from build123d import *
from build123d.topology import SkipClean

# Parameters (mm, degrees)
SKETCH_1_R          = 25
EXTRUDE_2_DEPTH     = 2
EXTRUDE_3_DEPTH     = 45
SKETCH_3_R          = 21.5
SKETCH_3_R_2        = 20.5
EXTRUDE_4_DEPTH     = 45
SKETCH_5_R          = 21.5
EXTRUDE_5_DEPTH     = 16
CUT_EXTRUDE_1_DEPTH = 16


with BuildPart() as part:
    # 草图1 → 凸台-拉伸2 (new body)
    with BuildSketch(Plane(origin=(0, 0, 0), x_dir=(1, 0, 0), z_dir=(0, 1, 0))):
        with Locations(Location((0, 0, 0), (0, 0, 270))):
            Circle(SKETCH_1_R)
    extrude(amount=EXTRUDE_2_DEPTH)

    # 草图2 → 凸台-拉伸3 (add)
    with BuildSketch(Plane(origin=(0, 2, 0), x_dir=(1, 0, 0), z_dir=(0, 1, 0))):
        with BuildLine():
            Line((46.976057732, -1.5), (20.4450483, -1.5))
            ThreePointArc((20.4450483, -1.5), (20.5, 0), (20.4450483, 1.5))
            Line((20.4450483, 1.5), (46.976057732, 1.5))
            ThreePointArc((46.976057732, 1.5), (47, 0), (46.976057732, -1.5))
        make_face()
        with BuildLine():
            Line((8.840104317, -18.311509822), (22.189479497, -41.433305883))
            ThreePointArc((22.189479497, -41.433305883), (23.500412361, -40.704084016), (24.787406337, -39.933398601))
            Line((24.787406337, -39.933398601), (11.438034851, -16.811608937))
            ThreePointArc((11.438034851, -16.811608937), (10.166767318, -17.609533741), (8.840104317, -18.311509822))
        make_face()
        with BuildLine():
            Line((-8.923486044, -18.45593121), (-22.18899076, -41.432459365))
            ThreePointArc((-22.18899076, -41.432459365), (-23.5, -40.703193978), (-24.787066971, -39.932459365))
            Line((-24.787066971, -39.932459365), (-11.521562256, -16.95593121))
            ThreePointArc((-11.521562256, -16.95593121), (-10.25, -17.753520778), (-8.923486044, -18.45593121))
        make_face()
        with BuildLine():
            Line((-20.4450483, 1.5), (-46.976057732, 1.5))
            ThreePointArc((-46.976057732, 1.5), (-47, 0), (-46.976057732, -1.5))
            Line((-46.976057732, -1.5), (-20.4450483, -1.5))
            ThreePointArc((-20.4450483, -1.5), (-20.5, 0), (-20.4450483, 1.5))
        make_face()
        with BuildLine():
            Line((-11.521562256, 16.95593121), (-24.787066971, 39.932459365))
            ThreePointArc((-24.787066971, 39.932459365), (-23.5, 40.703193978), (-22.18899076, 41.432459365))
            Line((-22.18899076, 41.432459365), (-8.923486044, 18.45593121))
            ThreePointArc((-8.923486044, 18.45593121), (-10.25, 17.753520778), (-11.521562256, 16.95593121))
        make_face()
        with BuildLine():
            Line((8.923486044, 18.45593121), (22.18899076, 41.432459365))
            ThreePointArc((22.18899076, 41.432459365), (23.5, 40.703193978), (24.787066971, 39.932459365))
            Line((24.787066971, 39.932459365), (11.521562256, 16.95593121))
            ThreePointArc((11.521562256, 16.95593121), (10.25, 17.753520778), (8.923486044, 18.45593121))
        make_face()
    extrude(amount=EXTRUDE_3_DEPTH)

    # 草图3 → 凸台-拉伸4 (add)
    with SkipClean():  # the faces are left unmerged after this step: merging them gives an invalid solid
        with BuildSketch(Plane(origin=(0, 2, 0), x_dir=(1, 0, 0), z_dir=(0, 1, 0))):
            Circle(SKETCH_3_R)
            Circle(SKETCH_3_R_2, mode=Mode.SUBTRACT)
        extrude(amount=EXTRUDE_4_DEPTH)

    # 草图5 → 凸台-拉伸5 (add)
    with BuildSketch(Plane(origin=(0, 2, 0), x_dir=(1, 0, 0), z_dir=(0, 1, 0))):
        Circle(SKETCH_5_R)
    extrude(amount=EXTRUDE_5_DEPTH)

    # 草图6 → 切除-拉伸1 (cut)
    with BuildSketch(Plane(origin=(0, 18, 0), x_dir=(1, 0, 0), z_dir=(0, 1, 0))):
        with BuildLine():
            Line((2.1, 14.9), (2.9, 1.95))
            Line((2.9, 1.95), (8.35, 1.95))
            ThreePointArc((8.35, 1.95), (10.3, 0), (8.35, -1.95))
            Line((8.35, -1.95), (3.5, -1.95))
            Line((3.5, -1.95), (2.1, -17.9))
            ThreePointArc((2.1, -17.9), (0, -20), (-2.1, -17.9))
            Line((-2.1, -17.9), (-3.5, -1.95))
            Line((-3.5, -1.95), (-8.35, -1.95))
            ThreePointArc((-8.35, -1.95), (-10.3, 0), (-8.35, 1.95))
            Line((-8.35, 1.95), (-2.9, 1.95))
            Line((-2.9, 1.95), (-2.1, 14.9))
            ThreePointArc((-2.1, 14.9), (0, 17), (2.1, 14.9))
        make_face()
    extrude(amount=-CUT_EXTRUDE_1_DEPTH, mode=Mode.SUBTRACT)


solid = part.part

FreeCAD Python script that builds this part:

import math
import FreeCAD as App
import Part
import Sketcher
Q = App.Units.Quantity

doc = App.newDocument("Part")
body = doc.addObject("PartDesign::Body", "Body")

sketch1 = body.newObject("Sketcher::SketchObject", "Sketch")
sketch1.AttachmentSupport = (doc.getObject("XZ_Plane"), [""])
sketch1.MapMode = "FlatFace"
sketch1.addGeometry(Part.Circle(App.Vector(0, 0, 0), App.Vector(0, 0, 1), 25), False)
sketch1.addConstraint([
    Sketcher.Constraint("Coincident", 0, 3, -1, 1),
    Sketcher.Constraint("Diameter", 0, 50.0),
])
pad1 = body.newObject("PartDesign::Pad", "Pad")
pad1.Profile = sketch1
pad1.Length = 2
pad1.Reversed = True

sketch2 = body.newObject("Sketcher::SketchObject", "Sketch001")
sketch2.AttachmentSupport = (doc.getObject("XZ_Plane"), [""])
sketch2.MapMode = "FlatFace"
sketch2.AttachmentOffset = App.Placement(App.Vector(0, 0, -2), App.Rotation())
sketch2.addGeometry([
    Part.LineSegment(App.Vector(20.4, 1.5, 0), App.Vector(47, 1.5, 0)),
    Part.ArcOfCircle(Part.Circle(App.Vector(0, 0, 0), App.Vector(0, 0, 1), 47), math.radians(-1.83), math.radians(1.83)),
    Part.LineSegment(App.Vector(47, -1.5, 0), App.Vector(20.4, -1.5, 0)),
    Part.ArcOfCircle(Part.Circle(App.Vector(0, 0, 0), App.Vector(0, 0, 1), 20.5), math.radians(-4.2), math.radians(4.2)),
    Part.LineSegment(App.Vector(8.8, 18.3, 0), App.Vector(22.2, 41.4, 0)),
    Part.ArcOfCircle(Part.Circle(App.Vector(0, 0, 0), App.Vector(0, 0, 1), 47), math.radians(58.17), math.radians(61.83)),
    Part.LineSegment(App.Vector(24.8, 39.9, 0), App.Vector(11.4, 16.8, 0)),
    Part.ArcOfCircle(Part.Circle(App.Vector(0, 0, 0), App.Vector(0, 0, 1), 20.3), math.radians(55.77), math.radians(64.23)),
    Part.LineSegment(App.Vector(-22.2, 41.4, 0), App.Vector(-8.9, 18.5, 0)),
    Part.ArcOfCircle(Part.Circle(App.Vector(0, 0, 0), App.Vector(0, 0, 1), 20.5), math.radians(115.8), math.radians(124.2)),
    Part.LineSegment(App.Vector(-11.5, 17, 0), App.Vector(-24.8, 39.9, 0)),
    Part.ArcOfCircle(Part.Circle(App.Vector(0, 0, 0), App.Vector(0, 0, 1), 47), math.radians(118.17), math.radians(121.83)),
    Part.LineSegment(App.Vector(-20.4, -1.5, 0), App.Vector(-47, -1.5, 0)),
    Part.ArcOfCircle(Part.Circle(App.Vector(0, 0, 0), App.Vector(0, 0, 1), 47), math.radians(178.17), math.radians(181.83)),
    Part.LineSegment(App.Vector(-47, 1.5, 0), App.Vector(-20.4, 1.5, 0)),
    Part.ArcOfCircle(Part.Circle(App.Vector(0, 0, 0), App.Vector(0, 0, 1), 20.5), math.radians(175.8), math.radians(184.2)),
    Part.LineSegment(App.Vector(-24.8, -39.9, 0), App.Vector(-11.5, -17, 0)),
    Part.ArcOfCircle(Part.Circle(App.Vector(0, 0, 0), App.Vector(0, 0, 1), 20.5), math.radians(-124.2), math.radians(-115.8)),
    Part.LineSegment(App.Vector(-8.9, -18.5, 0), App.Vector(-22.2, -41.4, 0)),
    Part.ArcOfCircle(Part.Circle(App.Vector(0, 0, 0), App.Vector(0, 0, 1), 47), math.radians(-121.83), math.radians(-118.17)),
    Part.LineSegment(App.Vector(22.2, -41.4, 0), App.Vector(8.9, -18.5, 0)),
    Part.ArcOfCircle(Part.Circle(App.Vector(0, 0, 0), App.Vector(0, 0, 1), 20.5), math.radians(-64.2), math.radians(-55.8)),
    Part.LineSegment(App.Vector(11.5, -17, 0), App.Vector(24.8, -39.9, 0)),
    Part.ArcOfCircle(Part.Circle(App.Vector(0, 0, 0), App.Vector(0, 0, 1), 47), math.radians(-61.83), math.radians(-58.17)),
], False)
sketch2.addConstraint([
    Sketcher.Constraint("Coincident", 0, 2, 1, 2),
    Sketcher.Constraint("Coincident", 1, 1, 2, 1),
    Sketcher.Constraint("Coincident", 2, 2, 3, 1),
    Sketcher.Constraint("Coincident", 3, 2, 0, 1),
    Sketcher.Constraint("Coincident", 4, 2, 5, 2),
    Sketcher.Constraint("Coincident", 5, 1, 6, 1),
    Sketcher.Constraint("Coincident", 6, 2, 7, 1),
    Sketcher.Constraint("Coincident", 7, 2, 4, 1),
    Sketcher.Constraint("Coincident", 8, 2, 9, 1),
    Sketcher.Constraint("Coincident", 9, 2, 10, 1),
    Sketcher.Constraint("Coincident", 10, 2, 11, 2),
    Sketcher.Constraint("Coincident", 11, 1, 8, 1),
    Sketcher.Constraint("Coincident", 12, 2, 13, 2),
    Sketcher.Constraint("Coincident", 13, 1, 14, 1),
    Sketcher.Constraint("Coincident", 14, 2, 15, 1),
    Sketcher.Constraint("Coincident", 15, 2, 12, 1),
    Sketcher.Constraint("Coincident", 16, 2, 17, 1),
    Sketcher.Constraint("Coincident", 17, 2, 18, 1),
    Sketcher.Constraint("Coincident", 18, 2, 19, 2),
    Sketcher.Constraint("Coincident", 19, 1, 16, 1),
    Sketcher.Constraint("Coincident", 20, 2, 21, 1),
    Sketcher.Constraint("Coincident", 21, 2, 22, 1),
    Sketcher.Constraint("Coincident", 22, 2, 23, 2),
    Sketcher.Constraint("Coincident", 23, 1, 20, 1),
    Sketcher.Constraint("Horizontal", 0),
    Sketcher.Constraint("Horizontal", 2),
    Sketcher.Constraint("Horizontal", 12),
    Sketcher.Constraint("Horizontal", 14),
    Sketcher.Constraint("Coincident", 1, 3, -1, 1),
    Sketcher.Constraint("Coincident", 3, 3, -1, 1),
    Sketcher.Constraint("Coincident", 5, 3, -1, 1),
    Sketcher.Constraint("Coincident", 7, 3, -1, 1),
    Sketcher.Constraint("Coincident", 9, 3, -1, 1),
    Sketcher.Constraint("Coincident", 11, 3, -1, 1),
    Sketcher.Constraint("Coincident", 13, 3, -1, 1),
    Sketcher.Constraint("Coincident", 15, 3, -1, 1),
    Sketcher.Constraint("Coincident", 17, 3, -1, 1),
    Sketcher.Constraint("Coincident", 19, 3, -1, 1),
    Sketcher.Constraint("Coincident", 21, 3, -1, 1),
    Sketcher.Constraint("Coincident", 23, 3, -1, 1),
    Sketcher.Constraint("Equal", 3, 9),
    Sketcher.Constraint("Equal", 1, 11),
    Sketcher.Constraint("Equal", 11, 13),
    Sketcher.Constraint("Equal", 9, 15),
    Sketcher.Constraint("Equal", 15, 17),
    Sketcher.Constraint("Equal", 13, 19),
    Sketcher.Constraint("Equal", 17, 21),
    Sketcher.Constraint("Equal", 19, 23),
    Sketcher.Constraint("Parallel", 4, 6),
    Sketcher.Constraint("Parallel", 8, 10),
    Sketcher.Constraint("Parallel", 6, 16),
    Sketcher.Constraint("Parallel", 16, 18),
    Sketcher.Constraint("Parallel", 10, 20),
    Sketcher.Constraint("Parallel", 20, 22),
    Sketcher.Constraint("Horizontal", 2, 2, 12, 2),
    Sketcher.Constraint("Horizontal", 3, 2, 13, 1),
    Sketcher.Constraint("Horizontal", 17, 2, 20, 2),
    Sketcher.Constraint("Horizontal", 16, 2, 21, 2),
    Sketcher.Constraint("Horizontal", 19, 1, 22, 2),
    Sketcher.Constraint("Vertical", 0, 2, 1, 1),
    Sketcher.Constraint("Vertical", 9, 2, 16, 2),
    Sketcher.Constraint("Vertical", 8, 2, 17, 2),
    Sketcher.Constraint("Equal", 8, 10),
    Sketcher.Constraint("Radius", 1, 47.000001),
    Sketcher.Constraint("Radius", 3, 20.5),
    Sketcher.Constraint("Angle", 4, Q("60 deg")),
    Sketcher.Constraint("DistanceY", 1, 1, 0, 2, 3.0),
    Sketcher.Constraint("DistanceY", 9, 2, 8, 2, 1.5),
    Sketcher.Constraint("Radius", 5, 47.000977),
    Sketcher.Constraint("Radius", 7, 20.333687),
    Sketcher.Constraint("DistanceY", -1, 1, 5, 1, 39.933399),
    Sketcher.Constraint("DistanceY", 6, 2, 7, 2, 1.499901),
])
pad2 = body.newObject("PartDesign::Pad", "Pad001")
pad2.Profile = sketch2
pad2.Length = 45
pad2.Reversed = True

sketch3 = body.newObject("Sketcher::SketchObject", "Sketch002")
sketch3.AttachmentSupport = (doc.getObject("XZ_Plane"), [""])
sketch3.MapMode = "FlatFace"
sketch3.AttachmentOffset = App.Placement(App.Vector(0, 0, -2), App.Rotation())
sketch3.addGeometry([
    Part.Circle(App.Vector(0, 0, 0), App.Vector(0, 0, 1), 22),
    Part.Circle(App.Vector(0, 0, 0), App.Vector(0, 0, 1), 20),
], False)
sketch3.addConstraint([
    Sketcher.Constraint("Coincident", 0, 3, -1, 1),
    Sketcher.Constraint("Coincident", 1, 3, -1, 1),
    Sketcher.Constraint("Diameter", 0, 43.0),
    Sketcher.Constraint("Diameter", 1, 41.0),
])
pad3 = body.newObject("PartDesign::Pad", "Pad002")
pad3.Profile = sketch3
pad3.Length = 45
pad3.Reversed = True

sketch4 = body.newObject("Sketcher::SketchObject", "Sketch003")
sketch4.AttachmentSupport = (doc.getObject("XZ_Plane"), [""])
sketch4.MapMode = "FlatFace"
sketch4.AttachmentOffset = App.Placement(App.Vector(0, 0, -2), App.Rotation())
sketch4.addGeometry(Part.Circle(App.Vector(0, 0, 0), App.Vector(0, 0, 1), 22), False)
sketch4.addConstraint([
    Sketcher.Constraint("Coincident", 0, 3, -1, 1),
    Sketcher.Constraint("Diameter", 0, 43.0),
])
pad4 = body.newObject("PartDesign::Pad", "Pad003")
pad4.Profile = sketch4
pad4.Length = 16
pad4.Reversed = True

sketch5 = body.newObject("Sketcher::SketchObject", "Sketch004")
sketch5.AttachmentSupport = (doc.getObject("XZ_Plane"), [""])
sketch5.MapMode = "FlatFace"
sketch5.AttachmentOffset = App.Placement(App.Vector(0, 0, -18), App.Rotation())
sketch5.addGeometry([
    Part.LineSegment(App.Vector(2.9, -1.9, 0), App.Vector(2.1, -14.9, 0)),
    Part.ArcOfCircle(Part.Circle(App.Vector(0, -14.9, 0), App.Vector(0, 0, 1), 2.1), math.radians(180), math.radians(360)),
    Part.LineSegment(App.Vector(-2.1, -14.9, 0), App.Vector(-2.9, -1.9, 0)),
    Part.LineSegment(App.Vector(-2.9, -1.9, 0), App.Vector(-8.3, -1.9, 0)),
    Part.ArcOfCircle(Part.Circle(App.Vector(-8.3, 0, 0), App.Vector(0, 0, 1), 1.9), math.radians(90), math.radians(270)),
    Part.LineSegment(App.Vector(-8.3, 1.9, 0), App.Vector(-3.5, 1.9, 0)),
    Part.LineSegment(App.Vector(-3.5, 1.9, 0), App.Vector(-2.1, 17.9, 0)),
    Part.ArcOfCircle(Part.Circle(App.Vector(0, 17.9, 0), App.Vector(0, 0, 1), 2.1), math.radians(0), math.radians(180)),
    Part.LineSegment(App.Vector(2.1, 17.9, 0), App.Vector(3.5, 1.9, 0)),
    Part.LineSegment(App.Vector(3.5, 1.9, 0), App.Vector(8.3, 1.9, 0)),
    Part.ArcOfCircle(Part.Circle(App.Vector(8.3, 0, 0), App.Vector(0, 0, 1), 1.9), math.radians(-90), math.radians(90)),
    Part.LineSegment(App.Vector(8.3, -1.9, 0), App.Vector(2.9, -1.9, 0)),
], False)
sketch5.addConstraint([
    Sketcher.Constraint("Coincident", 0, 2, 1, 2),
    Sketcher.Constraint("Coincident", 1, 1, 2, 1),
    Sketcher.Constraint("Coincident", 2, 2, 3, 1),
    Sketcher.Constraint("Tangent", 3, 2, 4, 2),
    Sketcher.Constraint("Tangent", 4, 1, 5, 1),
    Sketcher.Constraint("Coincident", 5, 2, 6, 1),
    Sketcher.Constraint("Coincident", 6, 2, 7, 2),
    Sketcher.Constraint("Coincident", 7, 1, 8, 1),
    Sketcher.Constraint("Coincident", 8, 2, 9, 1),
    Sketcher.Constraint("Tangent", 9, 2, 10, 2),
    Sketcher.Constraint("Tangent", 10, 1, 11, 1),
    Sketcher.Constraint("Coincident", 11, 2, 0, 1),
    Sketcher.Constraint("Horizontal", 3),
    Sketcher.Constraint("Horizontal", 5),
    Sketcher.Constraint("Horizontal", 9),
    Sketcher.Constraint("Horizontal", 11),
    Sketcher.Constraint("Equal", 1, 7),
    Sketcher.Constraint("Equal", 4, 10),
    Sketcher.Constraint("Symmetric", 4, 3, 10, 3, -1, 1),
    Sketcher.Constraint("Symmetric", 0, 2, 1, 1, -2),
    Sketcher.Constraint("Symmetric", 6, 2, 7, 1, -2),
    Sketcher.Constraint("Symmetric", 5, 2, 8, 2, -2),
    Sketcher.Constraint("Horizontal", 1, 3, 0, 2),
    Sketcher.Constraint("Horizontal", 7, 3, 6, 2),
    Sketcher.Constraint("Equal", 3, 11),
    Sketcher.Constraint("Radius", 1, 2.1),
    Sketcher.Constraint("Radius", 4, 1.95),
    Sketcher.Constraint("DistanceX", 2, 2, 0, 2, 5.0),
    Sketcher.Constraint("DistanceX", 5, 2, 8, 2, 7.0),
    Sketcher.Constraint("DistanceX", 3, 2, 3, 1, 5.45),
    Sketcher.Constraint("DistanceY", 1, 3, -1, 1, 14.9),
    Sketcher.Constraint("DistanceY", -1, 1, 7, 3, 17.9),
])
pocket1 = body.newObject("PartDesign::Pocket", "Pocket")
pocket1.Profile = sketch5
pocket1.Length = 16
pocket1.Reversed = True

doc.recompute()
